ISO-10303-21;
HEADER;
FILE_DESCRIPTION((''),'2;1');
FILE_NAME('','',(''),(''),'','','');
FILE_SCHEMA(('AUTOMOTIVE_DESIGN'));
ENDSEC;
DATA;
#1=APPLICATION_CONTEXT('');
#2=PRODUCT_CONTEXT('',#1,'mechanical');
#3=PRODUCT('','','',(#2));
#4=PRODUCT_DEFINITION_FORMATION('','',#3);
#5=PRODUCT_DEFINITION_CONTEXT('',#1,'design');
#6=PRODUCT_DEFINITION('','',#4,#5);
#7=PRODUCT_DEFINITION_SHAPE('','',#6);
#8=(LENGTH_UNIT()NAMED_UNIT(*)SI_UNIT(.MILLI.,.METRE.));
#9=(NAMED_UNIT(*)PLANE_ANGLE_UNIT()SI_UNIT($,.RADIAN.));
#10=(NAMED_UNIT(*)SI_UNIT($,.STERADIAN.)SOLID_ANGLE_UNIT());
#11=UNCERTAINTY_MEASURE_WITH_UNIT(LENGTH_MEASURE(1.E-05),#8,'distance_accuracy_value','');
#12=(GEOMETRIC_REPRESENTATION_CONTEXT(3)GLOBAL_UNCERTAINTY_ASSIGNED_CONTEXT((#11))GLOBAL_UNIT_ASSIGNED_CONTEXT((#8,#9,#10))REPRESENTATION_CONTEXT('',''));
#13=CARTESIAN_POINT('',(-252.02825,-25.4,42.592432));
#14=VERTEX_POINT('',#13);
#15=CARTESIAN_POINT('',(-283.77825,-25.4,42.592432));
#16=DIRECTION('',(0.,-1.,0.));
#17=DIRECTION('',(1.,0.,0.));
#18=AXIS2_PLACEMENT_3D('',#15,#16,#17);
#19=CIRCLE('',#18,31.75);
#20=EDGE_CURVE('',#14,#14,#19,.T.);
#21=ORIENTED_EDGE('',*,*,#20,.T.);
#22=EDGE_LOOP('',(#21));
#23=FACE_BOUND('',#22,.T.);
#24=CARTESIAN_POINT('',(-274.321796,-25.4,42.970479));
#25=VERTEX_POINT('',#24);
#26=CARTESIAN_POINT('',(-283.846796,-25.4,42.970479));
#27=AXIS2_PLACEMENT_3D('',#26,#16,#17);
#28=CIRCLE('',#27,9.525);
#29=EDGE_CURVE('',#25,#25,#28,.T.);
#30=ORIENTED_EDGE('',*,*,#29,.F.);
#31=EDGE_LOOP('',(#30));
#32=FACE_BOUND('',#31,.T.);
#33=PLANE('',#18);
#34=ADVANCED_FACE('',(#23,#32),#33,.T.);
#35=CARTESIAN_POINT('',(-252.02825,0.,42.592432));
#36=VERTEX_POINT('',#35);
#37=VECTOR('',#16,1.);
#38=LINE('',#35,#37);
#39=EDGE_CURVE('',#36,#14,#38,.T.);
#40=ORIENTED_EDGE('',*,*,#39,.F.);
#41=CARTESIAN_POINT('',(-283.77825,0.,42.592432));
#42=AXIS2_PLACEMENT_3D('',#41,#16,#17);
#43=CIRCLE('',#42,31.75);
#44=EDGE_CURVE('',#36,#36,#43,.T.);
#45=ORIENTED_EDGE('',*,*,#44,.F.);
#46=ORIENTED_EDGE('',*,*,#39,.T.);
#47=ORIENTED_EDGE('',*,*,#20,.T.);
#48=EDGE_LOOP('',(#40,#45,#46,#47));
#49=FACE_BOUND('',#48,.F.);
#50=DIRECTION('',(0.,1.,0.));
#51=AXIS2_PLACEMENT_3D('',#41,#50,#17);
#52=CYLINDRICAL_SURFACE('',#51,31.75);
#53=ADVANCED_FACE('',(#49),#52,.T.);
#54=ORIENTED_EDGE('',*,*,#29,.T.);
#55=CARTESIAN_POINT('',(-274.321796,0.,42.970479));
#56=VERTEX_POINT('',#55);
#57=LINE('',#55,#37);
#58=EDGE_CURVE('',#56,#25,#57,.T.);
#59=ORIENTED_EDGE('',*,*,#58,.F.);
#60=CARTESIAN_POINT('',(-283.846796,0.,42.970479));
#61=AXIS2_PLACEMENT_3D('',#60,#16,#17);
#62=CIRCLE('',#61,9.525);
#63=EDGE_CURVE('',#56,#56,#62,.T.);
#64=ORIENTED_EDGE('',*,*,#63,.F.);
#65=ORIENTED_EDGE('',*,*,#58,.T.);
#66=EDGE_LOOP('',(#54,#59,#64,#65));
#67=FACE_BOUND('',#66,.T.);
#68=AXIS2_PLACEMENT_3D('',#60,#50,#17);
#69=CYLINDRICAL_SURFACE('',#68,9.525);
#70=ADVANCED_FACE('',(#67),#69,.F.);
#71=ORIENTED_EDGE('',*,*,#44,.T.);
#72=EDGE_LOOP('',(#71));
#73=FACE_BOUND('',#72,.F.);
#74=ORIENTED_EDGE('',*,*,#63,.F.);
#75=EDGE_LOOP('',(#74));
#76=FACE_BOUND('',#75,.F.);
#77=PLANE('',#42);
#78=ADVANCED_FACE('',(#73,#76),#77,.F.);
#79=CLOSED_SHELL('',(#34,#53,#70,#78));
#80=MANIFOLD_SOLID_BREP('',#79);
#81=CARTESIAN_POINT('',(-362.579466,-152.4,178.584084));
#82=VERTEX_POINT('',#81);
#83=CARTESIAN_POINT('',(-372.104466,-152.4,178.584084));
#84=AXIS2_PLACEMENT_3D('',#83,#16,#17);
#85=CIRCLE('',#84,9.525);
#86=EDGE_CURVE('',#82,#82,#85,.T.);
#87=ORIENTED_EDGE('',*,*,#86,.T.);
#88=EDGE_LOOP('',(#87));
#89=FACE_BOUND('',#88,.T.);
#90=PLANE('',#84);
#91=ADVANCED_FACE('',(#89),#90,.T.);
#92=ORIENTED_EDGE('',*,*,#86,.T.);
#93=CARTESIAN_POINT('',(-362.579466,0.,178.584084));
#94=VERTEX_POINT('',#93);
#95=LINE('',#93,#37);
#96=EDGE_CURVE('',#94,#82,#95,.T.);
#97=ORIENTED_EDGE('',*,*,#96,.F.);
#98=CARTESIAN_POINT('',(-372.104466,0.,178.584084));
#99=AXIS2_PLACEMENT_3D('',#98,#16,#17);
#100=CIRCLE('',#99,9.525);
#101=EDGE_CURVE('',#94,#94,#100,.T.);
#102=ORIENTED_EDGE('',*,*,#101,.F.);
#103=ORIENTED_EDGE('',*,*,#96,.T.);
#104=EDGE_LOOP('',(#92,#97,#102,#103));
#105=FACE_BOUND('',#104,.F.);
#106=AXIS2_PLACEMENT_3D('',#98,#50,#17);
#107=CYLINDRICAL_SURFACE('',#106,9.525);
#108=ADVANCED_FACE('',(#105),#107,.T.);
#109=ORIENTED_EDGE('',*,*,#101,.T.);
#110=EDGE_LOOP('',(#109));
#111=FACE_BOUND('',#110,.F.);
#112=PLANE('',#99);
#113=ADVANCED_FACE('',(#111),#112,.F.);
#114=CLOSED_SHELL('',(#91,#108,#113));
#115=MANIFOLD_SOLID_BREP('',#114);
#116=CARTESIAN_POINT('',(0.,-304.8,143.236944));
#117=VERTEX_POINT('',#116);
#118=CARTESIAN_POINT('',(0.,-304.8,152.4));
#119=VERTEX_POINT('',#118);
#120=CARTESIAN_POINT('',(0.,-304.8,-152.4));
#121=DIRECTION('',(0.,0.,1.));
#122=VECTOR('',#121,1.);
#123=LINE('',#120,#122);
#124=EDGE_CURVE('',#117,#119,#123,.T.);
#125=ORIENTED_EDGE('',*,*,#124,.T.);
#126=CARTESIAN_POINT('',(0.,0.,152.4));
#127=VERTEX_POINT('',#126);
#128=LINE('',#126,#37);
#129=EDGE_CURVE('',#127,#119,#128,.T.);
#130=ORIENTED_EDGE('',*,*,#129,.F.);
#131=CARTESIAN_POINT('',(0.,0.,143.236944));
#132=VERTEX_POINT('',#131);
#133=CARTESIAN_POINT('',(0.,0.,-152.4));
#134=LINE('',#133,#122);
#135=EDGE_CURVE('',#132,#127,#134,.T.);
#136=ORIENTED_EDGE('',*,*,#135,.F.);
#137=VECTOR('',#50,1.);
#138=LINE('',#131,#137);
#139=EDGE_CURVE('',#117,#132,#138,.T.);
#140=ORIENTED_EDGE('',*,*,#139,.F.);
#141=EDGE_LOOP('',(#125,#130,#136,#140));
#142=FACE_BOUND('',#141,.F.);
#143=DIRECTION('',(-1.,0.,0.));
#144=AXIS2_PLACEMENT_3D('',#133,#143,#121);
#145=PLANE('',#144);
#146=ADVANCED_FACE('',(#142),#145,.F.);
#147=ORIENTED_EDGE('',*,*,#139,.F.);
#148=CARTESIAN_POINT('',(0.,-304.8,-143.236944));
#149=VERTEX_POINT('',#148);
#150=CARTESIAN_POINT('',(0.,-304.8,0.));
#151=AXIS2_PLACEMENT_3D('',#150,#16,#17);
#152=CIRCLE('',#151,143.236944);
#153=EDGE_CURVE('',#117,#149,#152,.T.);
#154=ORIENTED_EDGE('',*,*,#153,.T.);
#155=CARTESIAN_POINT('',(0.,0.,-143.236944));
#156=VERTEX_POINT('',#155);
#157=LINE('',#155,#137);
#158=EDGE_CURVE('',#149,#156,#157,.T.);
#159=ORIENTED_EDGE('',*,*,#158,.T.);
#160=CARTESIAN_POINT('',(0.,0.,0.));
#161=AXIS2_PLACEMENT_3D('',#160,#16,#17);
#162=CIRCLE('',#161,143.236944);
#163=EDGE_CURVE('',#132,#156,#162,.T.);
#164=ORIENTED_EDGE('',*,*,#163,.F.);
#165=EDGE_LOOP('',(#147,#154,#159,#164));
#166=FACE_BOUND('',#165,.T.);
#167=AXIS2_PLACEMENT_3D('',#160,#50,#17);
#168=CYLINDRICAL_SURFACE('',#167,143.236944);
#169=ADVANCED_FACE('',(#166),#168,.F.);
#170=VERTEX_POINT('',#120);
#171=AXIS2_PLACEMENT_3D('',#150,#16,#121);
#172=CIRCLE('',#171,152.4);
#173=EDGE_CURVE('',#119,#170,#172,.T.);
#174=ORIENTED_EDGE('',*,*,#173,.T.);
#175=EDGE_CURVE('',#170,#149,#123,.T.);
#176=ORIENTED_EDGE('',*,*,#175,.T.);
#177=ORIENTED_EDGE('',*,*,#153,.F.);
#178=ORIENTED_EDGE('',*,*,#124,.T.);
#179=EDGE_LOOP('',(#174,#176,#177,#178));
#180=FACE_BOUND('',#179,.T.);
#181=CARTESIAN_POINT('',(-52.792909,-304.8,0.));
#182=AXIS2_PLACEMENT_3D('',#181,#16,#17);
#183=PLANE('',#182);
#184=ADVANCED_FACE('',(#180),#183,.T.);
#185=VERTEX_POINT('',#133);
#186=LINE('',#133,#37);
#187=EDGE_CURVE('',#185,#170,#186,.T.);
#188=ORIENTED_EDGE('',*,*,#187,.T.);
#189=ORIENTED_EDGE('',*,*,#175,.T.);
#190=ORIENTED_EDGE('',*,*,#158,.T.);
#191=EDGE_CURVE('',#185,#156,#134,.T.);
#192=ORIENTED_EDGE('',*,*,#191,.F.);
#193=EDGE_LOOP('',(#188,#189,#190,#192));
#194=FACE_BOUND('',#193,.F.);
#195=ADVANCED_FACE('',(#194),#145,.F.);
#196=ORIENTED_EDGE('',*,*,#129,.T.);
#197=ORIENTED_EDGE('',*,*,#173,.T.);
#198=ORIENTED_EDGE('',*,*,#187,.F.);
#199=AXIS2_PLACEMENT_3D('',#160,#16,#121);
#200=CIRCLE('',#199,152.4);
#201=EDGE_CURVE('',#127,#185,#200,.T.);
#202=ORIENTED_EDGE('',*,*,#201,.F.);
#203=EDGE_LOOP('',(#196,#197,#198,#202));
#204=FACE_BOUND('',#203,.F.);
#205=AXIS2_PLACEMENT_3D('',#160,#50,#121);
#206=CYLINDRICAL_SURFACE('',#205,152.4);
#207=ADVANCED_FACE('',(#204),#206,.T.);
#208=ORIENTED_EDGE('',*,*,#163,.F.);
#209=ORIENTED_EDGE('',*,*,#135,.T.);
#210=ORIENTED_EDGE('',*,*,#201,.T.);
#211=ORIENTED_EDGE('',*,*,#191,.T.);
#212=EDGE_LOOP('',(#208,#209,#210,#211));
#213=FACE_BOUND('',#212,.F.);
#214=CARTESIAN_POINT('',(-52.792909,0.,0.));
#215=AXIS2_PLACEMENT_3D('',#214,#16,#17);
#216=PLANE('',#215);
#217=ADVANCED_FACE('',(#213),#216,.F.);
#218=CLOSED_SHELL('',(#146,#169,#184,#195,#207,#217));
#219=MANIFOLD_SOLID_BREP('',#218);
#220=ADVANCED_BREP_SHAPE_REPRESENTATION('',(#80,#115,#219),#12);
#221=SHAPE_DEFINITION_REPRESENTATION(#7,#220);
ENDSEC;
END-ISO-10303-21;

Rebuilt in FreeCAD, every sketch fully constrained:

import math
import FreeCAD as App
import Part
import Sketcher
Q = App.Units.Quantity

doc = App.newDocument("Part")
body = doc.addObject("PartDesign::Body", "Body")

sketch1 = body.newObject("Sketcher::SketchObject", "Sketch")
sketch1.AttachmentSupport = (doc.getObject("XZ_Plane"), [""])
sketch1.MapMode = "FlatFace"
sketch1.addGeometry([
    Part.LineSegment(App.Vector(0, -152, 0), App.Vector(0, 152, 0)),
    Part.ArcOfCircle(Part.Circle(App.Vector(0, 0, 0), App.Vector(0, 0, 1), 152), math.radians(90), math.radians(270)),
], False)
sketch1.addConstraint([
    Sketcher.Constraint("Coincident", 0, 1, 1, 2),
    Sketcher.Constraint("Coincident", 1, 1, 0, 2),
    Sketcher.Constraint("Vertical", 0),
    Sketcher.Constraint("Coincident", 1, 3, -1, 1),
    Sketcher.Constraint("PointOnObject", 0, 1, -2),
    Sketcher.Constraint("Radius", 1, Q("6 in")),
])
pad1 = body.newObject("PartDesign::Pad", "Pad")
pad1.Profile = sketch1
pad1.Length = Q("12 in")

sketch2 = body.newObject("Sketcher::SketchObject", "Sketch001")
sketch2.AttachmentSupport = (doc.getObject("XZ_Plane"), [""])
sketch2.MapMode = "FlatFace"
sketch2.addGeometry(Part.Circle(App.Vector(0, 0, 0), App.Vector(0, 0, 1), 143), False)
sketch2.addConstraint([
    Sketcher.Constraint("Coincident", 0, 3, -1, 1),
    Sketcher.Constraint("Diameter", 0, Q("286.473888 mm")),
])
pocket1 = body.newObject("PartDesign::Pocket", "Pocket")
pocket1.Profile = sketch2
pocket1.Length = Q("12 in")
pocket1.Reversed = True
body2 = doc.addObject("PartDesign::Body", "Body001")

sketch3 = body2.newObject("Sketcher::SketchObject", "Sketch002")
sketch3.AttachmentSupport = (doc.getObject("XZ_Plane001"), [""])
sketch3.MapMode = "FlatFace"
sketch3.addGeometry(Part.Circle(App.Vector(-372, 179, 0), App.Vector(0, 0, 1), 10), False)
sketch3.addConstraint([
    Sketcher.Constraint("Diameter", 0, Q("0.75 in")),
    Sketcher.Constraint("DistanceX", 0, 3, -1, 1, Q("372.104466 mm")),
    Sketcher.Constraint("DistanceY", -1, 1, 0, 3, Q("178.584084 mm")),
])
pad2 = body2.newObject("PartDesign::Pad", "Pad001")
pad2.Profile = sketch3
pad2.Length = Q("6 in")
body3 = doc.addObject("PartDesign::Body", "Body002")

sketch4 = body3.newObject("Sketcher::SketchObject", "Sketch003")
sketch4.AttachmentSupport = (doc.getObject("XZ_Plane002"), [""])
sketch4.MapMode = "FlatFace"
sketch4.addGeometry(Part.Circle(App.Vector(-284, 43, 0), App.Vector(0, 0, 1), 32), False)
sketch4.addConstraint([
    Sketcher.Constraint("Diameter", 0, Q("2.5 in")),
    Sketcher.Constraint("DistanceX", 0, 3, -1, 1, Q("283.77825 mm")),
    Sketcher.Constraint("DistanceY", -1, 1, 0, 3, Q("42.592432 mm")),
])
pad3 = body3.newObject("PartDesign::Pad", "Pad002")
pad3.Profile = sketch4
pad3.Length = Q("1 in")

sketch5 = body3.newObject("Sketcher::SketchObject", "Sketch004")
sketch5.AttachmentSupport = (doc.getObject("XZ_Plane002"), [""])
sketch5.MapMode = "FlatFace"
sketch5.addGeometry(Part.Circle(App.Vector(-284, 43, 0), App.Vector(0, 0, 1), 10), False)
sketch5.addConstraint([
    Sketcher.Constraint("Diameter", 0, Q("0.75 in")),
    Sketcher.Constraint("DistanceY", -1, 1, 0, 3, Q("42.970479 mm")),
    Sketcher.Constraint("DistanceX", 0, 3, -1, 1, Q("283.846796 mm")),
])
pocket2 = body3.newObject("PartDesign::Pocket", "Pocket001")
pocket2.Profile = sketch5
pocket2.Length = Q("1 in")
pocket2.Reversed = True

doc.recompute()
